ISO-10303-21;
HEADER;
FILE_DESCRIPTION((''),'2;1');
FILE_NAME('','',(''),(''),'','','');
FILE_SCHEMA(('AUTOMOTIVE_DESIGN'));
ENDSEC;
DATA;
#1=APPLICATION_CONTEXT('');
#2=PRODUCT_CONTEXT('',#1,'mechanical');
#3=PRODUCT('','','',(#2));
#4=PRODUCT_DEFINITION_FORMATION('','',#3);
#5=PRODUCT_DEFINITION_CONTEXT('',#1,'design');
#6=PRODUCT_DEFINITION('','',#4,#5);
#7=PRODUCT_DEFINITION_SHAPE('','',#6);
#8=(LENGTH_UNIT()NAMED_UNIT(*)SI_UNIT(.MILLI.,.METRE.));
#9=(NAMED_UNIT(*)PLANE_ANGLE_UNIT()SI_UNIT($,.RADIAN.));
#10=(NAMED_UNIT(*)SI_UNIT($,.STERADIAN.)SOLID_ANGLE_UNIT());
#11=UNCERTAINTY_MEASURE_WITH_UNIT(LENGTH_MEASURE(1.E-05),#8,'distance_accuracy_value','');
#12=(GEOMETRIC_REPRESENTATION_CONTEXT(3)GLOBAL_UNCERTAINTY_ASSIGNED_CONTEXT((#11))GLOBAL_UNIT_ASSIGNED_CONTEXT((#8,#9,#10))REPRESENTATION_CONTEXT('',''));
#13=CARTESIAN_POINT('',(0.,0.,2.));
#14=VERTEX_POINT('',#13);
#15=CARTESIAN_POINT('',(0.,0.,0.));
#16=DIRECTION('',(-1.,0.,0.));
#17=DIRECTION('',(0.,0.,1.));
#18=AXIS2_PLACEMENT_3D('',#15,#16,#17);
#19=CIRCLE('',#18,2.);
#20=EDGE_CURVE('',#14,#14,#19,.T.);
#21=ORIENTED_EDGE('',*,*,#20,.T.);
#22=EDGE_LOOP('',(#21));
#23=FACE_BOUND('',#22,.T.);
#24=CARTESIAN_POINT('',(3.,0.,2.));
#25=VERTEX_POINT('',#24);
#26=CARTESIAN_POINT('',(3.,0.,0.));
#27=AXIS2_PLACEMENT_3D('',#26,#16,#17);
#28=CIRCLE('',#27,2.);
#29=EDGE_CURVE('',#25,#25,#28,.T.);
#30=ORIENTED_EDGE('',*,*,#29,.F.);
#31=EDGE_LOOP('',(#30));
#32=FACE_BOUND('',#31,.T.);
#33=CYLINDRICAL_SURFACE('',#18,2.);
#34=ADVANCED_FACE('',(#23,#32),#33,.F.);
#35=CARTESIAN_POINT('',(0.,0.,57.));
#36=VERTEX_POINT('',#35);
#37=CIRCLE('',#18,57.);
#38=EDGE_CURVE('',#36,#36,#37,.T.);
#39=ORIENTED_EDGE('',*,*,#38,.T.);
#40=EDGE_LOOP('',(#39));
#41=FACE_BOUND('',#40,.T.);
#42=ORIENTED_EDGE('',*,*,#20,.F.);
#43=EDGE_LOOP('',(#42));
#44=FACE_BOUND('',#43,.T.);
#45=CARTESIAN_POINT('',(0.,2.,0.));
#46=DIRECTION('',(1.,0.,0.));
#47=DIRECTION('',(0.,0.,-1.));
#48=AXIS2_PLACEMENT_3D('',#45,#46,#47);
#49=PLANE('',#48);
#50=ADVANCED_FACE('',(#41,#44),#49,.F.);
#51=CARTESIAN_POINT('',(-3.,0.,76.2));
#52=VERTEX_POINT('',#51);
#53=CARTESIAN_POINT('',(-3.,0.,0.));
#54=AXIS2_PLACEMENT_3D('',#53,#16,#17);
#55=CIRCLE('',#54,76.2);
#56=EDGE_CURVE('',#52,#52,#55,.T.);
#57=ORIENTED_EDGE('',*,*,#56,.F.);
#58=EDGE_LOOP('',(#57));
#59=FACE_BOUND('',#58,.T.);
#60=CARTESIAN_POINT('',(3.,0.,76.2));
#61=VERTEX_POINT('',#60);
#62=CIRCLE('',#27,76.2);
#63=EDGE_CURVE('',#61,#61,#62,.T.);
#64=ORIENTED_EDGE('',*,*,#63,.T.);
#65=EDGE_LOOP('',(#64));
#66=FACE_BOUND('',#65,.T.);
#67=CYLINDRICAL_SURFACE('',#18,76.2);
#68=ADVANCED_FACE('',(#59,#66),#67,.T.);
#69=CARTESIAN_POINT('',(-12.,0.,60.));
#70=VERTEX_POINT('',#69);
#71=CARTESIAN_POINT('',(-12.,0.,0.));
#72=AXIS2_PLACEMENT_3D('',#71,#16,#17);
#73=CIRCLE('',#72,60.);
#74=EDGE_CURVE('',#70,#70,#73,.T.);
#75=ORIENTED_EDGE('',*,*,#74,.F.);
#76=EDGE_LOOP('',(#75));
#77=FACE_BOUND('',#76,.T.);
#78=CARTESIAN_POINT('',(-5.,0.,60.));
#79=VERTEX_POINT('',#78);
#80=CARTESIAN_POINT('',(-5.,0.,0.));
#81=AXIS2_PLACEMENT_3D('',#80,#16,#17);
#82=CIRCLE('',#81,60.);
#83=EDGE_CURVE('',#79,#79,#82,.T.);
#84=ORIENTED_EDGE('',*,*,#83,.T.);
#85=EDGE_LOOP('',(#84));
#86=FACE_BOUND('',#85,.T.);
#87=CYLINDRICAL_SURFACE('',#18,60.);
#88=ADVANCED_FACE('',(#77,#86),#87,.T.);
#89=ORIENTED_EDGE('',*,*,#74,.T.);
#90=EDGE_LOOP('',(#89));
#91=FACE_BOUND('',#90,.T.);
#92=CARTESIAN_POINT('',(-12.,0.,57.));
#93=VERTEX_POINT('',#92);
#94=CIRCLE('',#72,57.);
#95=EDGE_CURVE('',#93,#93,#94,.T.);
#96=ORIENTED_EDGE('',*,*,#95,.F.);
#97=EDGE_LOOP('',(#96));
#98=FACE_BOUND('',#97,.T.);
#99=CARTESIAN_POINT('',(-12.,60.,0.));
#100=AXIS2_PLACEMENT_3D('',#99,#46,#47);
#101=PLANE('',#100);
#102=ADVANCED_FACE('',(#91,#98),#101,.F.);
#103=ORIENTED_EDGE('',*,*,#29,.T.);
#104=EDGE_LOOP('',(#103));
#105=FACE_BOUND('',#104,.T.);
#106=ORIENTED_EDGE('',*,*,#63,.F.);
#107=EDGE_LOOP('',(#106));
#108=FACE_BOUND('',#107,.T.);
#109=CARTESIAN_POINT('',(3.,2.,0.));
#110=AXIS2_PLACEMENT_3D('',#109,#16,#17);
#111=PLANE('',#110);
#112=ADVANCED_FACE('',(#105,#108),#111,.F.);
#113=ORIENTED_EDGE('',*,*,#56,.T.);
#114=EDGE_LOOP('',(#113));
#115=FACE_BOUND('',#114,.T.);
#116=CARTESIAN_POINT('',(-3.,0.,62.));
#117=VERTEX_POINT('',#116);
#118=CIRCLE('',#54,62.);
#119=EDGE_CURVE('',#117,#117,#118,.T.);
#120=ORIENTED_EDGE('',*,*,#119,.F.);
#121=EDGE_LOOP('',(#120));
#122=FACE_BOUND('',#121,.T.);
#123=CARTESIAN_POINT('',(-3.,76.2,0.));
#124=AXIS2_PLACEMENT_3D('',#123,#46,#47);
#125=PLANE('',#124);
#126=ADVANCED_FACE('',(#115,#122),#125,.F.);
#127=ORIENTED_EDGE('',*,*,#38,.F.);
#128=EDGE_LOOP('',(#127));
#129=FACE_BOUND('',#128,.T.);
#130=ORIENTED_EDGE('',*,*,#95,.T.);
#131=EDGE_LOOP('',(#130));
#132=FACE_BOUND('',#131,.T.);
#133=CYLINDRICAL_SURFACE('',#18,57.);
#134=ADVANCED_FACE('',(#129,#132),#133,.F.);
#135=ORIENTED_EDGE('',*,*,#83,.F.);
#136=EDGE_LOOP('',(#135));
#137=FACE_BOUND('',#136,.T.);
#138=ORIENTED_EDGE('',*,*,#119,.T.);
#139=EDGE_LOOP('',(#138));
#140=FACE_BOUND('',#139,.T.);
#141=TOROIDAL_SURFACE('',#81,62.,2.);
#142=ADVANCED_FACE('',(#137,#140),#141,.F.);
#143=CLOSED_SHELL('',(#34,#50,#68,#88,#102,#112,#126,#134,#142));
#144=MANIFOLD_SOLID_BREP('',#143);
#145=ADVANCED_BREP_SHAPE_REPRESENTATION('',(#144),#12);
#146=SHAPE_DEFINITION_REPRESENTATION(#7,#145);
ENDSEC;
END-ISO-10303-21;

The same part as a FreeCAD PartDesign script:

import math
import FreeCAD as App
import Part
import Sketcher
from FreeCAD import Vector
Q = App.Units.Quantity

doc = App.newDocument("Part")
params = doc.addObject("Spreadsheet::Sheet", "Params")
for row, (alias, value) in enumerate([
    ("sketch1_radius", "2 mm"),
    ("sketch1_width", "3 mm"),
    ("sketch1_width2", "6 mm"),
    ("sketch1_width3", "7 mm"),
    ("sketch1_height", "55 mm"),
    ("revolution_angle", "360 deg"),
], start=1):
    params.set(f"A{row}", alias)
    params.set(f"B{row}", "=" + value)
    params.setAlias(f"B{row}", alias)

body = doc.addObject("PartDesign::Body", "Body")

sketch1 = body.newObject("Sketcher::SketchObject", "Sketch")
sketch1.AttachmentSupport = (doc.getObject("XY_Plane"), [""])
sketch1.MapMode = "FlatFace"
sketch1.addGeometry([
    Part.LineSegment(Vector(0, 2, 0), Vector(3, 2, 0)),
    Part.LineSegment(Vector(3, 2, 0), Vector(3, 76.2, 0)),
    Part.LineSegment(Vector(3, 76.2, 0), Vector(-3, 76.2, 0)),
    Part.LineSegment(Vector(-3, 76.2, 0), Vector(-3, 62, 0)),
    Part.ArcOfCircle(Part.Circle(Vector(-5, 62, 0), Vector(0, 0, 1), 2), math.radians(-90), math.radians(0)),
    Part.LineSegment(Vector(-5, 60, 0), Vector(-12, 60, 0)),
    Part.LineSegment(Vector(-12, 60, 0), Vector(-12, 57, 0)),
    Part.LineSegment(Vector(-12, 57, 0), Vector(0, 57, 0)),
    Part.LineSegment(Vector(0, 57, 0), Vector(0, 2, 0)),
], False)
sketch1.addConstraint([
    Sketcher.Constraint("Coincident", 0, 2, 1, 1),
    Sketcher.Constraint("Coincident", 1, 2, 2, 1),
    Sketcher.Constraint("Coincident", 2, 2, 3, 1),
    Sketcher.Constraint("Tangent", 3, 2, 4, 2),
    Sketcher.Constraint("Tangent", 4, 1, 5, 1),
    Sketcher.Constraint("Coincident", 5, 2, 6, 1),
    Sketcher.Constraint("Coincident", 6, 2, 7, 1),
    Sketcher.Constraint("Coincident", 7, 2, 8, 1),
    Sketcher.Constraint("Coincident", 8, 2, 0, 1),
    Sketcher.Constraint("Horizontal", 0),
    Sketcher.Constraint("Vertical", 1),
    Sketcher.Constraint("Horizontal", 2),
    Sketcher.Constraint("Vertical", 3),
    Sketcher.Constraint("Horizontal", 5),
    Sketcher.Constraint("Vertical", 6),
    Sketcher.Constraint("Horizontal", 7),
    Sketcher.Constraint("Vertical", 8),
    Sketcher.Constraint("PointOnObject", 7, 2, -2),
    Sketcher.Constraint("Equal", 0, 6),
    Sketcher.Constraint("Radius", 4, Q("2 mm")),
    Sketcher.Constraint("DistanceX", 0, 1, 0, 2, Q("3 mm")),
    Sketcher.Constraint("DistanceX", 2, 2, 2, 1, Q("6 mm")),
    Sketcher.Constraint("DistanceX", 5, 2, 5, 1, Q("7 mm")),
    Sketcher.Constraint("DistanceY", 8, 2, 8, 1, Q("55 mm")),
    Sketcher.Constraint("DistanceY", 1, 1, 1, 2, Q("74.2 mm")),
    Sketcher.Constraint("DistanceY", -1, 1, 4, 3, Q("62 mm")),
])
sketch1.setExpression("Constraints[19]", "Params.sketch1_radius")
sketch1.setExpression("Constraints[20]", "Params.sketch1_width")
sketch1.setExpression("Constraints[21]", "Params.sketch1_width2")
sketch1.setExpression("Constraints[22]", "Params.sketch1_width3")
sketch1.setExpression("Constraints[23]", "Params.sketch1_height")
revolution = body.newObject("PartDesign::Revolution", "Revolution")
revolution.Profile = sketch1
revolution.ReferenceAxis = (sketch1, ["H_Axis"])
revolution.setExpression("Angle", "Params.revolution_angle")

doc.recompute()
